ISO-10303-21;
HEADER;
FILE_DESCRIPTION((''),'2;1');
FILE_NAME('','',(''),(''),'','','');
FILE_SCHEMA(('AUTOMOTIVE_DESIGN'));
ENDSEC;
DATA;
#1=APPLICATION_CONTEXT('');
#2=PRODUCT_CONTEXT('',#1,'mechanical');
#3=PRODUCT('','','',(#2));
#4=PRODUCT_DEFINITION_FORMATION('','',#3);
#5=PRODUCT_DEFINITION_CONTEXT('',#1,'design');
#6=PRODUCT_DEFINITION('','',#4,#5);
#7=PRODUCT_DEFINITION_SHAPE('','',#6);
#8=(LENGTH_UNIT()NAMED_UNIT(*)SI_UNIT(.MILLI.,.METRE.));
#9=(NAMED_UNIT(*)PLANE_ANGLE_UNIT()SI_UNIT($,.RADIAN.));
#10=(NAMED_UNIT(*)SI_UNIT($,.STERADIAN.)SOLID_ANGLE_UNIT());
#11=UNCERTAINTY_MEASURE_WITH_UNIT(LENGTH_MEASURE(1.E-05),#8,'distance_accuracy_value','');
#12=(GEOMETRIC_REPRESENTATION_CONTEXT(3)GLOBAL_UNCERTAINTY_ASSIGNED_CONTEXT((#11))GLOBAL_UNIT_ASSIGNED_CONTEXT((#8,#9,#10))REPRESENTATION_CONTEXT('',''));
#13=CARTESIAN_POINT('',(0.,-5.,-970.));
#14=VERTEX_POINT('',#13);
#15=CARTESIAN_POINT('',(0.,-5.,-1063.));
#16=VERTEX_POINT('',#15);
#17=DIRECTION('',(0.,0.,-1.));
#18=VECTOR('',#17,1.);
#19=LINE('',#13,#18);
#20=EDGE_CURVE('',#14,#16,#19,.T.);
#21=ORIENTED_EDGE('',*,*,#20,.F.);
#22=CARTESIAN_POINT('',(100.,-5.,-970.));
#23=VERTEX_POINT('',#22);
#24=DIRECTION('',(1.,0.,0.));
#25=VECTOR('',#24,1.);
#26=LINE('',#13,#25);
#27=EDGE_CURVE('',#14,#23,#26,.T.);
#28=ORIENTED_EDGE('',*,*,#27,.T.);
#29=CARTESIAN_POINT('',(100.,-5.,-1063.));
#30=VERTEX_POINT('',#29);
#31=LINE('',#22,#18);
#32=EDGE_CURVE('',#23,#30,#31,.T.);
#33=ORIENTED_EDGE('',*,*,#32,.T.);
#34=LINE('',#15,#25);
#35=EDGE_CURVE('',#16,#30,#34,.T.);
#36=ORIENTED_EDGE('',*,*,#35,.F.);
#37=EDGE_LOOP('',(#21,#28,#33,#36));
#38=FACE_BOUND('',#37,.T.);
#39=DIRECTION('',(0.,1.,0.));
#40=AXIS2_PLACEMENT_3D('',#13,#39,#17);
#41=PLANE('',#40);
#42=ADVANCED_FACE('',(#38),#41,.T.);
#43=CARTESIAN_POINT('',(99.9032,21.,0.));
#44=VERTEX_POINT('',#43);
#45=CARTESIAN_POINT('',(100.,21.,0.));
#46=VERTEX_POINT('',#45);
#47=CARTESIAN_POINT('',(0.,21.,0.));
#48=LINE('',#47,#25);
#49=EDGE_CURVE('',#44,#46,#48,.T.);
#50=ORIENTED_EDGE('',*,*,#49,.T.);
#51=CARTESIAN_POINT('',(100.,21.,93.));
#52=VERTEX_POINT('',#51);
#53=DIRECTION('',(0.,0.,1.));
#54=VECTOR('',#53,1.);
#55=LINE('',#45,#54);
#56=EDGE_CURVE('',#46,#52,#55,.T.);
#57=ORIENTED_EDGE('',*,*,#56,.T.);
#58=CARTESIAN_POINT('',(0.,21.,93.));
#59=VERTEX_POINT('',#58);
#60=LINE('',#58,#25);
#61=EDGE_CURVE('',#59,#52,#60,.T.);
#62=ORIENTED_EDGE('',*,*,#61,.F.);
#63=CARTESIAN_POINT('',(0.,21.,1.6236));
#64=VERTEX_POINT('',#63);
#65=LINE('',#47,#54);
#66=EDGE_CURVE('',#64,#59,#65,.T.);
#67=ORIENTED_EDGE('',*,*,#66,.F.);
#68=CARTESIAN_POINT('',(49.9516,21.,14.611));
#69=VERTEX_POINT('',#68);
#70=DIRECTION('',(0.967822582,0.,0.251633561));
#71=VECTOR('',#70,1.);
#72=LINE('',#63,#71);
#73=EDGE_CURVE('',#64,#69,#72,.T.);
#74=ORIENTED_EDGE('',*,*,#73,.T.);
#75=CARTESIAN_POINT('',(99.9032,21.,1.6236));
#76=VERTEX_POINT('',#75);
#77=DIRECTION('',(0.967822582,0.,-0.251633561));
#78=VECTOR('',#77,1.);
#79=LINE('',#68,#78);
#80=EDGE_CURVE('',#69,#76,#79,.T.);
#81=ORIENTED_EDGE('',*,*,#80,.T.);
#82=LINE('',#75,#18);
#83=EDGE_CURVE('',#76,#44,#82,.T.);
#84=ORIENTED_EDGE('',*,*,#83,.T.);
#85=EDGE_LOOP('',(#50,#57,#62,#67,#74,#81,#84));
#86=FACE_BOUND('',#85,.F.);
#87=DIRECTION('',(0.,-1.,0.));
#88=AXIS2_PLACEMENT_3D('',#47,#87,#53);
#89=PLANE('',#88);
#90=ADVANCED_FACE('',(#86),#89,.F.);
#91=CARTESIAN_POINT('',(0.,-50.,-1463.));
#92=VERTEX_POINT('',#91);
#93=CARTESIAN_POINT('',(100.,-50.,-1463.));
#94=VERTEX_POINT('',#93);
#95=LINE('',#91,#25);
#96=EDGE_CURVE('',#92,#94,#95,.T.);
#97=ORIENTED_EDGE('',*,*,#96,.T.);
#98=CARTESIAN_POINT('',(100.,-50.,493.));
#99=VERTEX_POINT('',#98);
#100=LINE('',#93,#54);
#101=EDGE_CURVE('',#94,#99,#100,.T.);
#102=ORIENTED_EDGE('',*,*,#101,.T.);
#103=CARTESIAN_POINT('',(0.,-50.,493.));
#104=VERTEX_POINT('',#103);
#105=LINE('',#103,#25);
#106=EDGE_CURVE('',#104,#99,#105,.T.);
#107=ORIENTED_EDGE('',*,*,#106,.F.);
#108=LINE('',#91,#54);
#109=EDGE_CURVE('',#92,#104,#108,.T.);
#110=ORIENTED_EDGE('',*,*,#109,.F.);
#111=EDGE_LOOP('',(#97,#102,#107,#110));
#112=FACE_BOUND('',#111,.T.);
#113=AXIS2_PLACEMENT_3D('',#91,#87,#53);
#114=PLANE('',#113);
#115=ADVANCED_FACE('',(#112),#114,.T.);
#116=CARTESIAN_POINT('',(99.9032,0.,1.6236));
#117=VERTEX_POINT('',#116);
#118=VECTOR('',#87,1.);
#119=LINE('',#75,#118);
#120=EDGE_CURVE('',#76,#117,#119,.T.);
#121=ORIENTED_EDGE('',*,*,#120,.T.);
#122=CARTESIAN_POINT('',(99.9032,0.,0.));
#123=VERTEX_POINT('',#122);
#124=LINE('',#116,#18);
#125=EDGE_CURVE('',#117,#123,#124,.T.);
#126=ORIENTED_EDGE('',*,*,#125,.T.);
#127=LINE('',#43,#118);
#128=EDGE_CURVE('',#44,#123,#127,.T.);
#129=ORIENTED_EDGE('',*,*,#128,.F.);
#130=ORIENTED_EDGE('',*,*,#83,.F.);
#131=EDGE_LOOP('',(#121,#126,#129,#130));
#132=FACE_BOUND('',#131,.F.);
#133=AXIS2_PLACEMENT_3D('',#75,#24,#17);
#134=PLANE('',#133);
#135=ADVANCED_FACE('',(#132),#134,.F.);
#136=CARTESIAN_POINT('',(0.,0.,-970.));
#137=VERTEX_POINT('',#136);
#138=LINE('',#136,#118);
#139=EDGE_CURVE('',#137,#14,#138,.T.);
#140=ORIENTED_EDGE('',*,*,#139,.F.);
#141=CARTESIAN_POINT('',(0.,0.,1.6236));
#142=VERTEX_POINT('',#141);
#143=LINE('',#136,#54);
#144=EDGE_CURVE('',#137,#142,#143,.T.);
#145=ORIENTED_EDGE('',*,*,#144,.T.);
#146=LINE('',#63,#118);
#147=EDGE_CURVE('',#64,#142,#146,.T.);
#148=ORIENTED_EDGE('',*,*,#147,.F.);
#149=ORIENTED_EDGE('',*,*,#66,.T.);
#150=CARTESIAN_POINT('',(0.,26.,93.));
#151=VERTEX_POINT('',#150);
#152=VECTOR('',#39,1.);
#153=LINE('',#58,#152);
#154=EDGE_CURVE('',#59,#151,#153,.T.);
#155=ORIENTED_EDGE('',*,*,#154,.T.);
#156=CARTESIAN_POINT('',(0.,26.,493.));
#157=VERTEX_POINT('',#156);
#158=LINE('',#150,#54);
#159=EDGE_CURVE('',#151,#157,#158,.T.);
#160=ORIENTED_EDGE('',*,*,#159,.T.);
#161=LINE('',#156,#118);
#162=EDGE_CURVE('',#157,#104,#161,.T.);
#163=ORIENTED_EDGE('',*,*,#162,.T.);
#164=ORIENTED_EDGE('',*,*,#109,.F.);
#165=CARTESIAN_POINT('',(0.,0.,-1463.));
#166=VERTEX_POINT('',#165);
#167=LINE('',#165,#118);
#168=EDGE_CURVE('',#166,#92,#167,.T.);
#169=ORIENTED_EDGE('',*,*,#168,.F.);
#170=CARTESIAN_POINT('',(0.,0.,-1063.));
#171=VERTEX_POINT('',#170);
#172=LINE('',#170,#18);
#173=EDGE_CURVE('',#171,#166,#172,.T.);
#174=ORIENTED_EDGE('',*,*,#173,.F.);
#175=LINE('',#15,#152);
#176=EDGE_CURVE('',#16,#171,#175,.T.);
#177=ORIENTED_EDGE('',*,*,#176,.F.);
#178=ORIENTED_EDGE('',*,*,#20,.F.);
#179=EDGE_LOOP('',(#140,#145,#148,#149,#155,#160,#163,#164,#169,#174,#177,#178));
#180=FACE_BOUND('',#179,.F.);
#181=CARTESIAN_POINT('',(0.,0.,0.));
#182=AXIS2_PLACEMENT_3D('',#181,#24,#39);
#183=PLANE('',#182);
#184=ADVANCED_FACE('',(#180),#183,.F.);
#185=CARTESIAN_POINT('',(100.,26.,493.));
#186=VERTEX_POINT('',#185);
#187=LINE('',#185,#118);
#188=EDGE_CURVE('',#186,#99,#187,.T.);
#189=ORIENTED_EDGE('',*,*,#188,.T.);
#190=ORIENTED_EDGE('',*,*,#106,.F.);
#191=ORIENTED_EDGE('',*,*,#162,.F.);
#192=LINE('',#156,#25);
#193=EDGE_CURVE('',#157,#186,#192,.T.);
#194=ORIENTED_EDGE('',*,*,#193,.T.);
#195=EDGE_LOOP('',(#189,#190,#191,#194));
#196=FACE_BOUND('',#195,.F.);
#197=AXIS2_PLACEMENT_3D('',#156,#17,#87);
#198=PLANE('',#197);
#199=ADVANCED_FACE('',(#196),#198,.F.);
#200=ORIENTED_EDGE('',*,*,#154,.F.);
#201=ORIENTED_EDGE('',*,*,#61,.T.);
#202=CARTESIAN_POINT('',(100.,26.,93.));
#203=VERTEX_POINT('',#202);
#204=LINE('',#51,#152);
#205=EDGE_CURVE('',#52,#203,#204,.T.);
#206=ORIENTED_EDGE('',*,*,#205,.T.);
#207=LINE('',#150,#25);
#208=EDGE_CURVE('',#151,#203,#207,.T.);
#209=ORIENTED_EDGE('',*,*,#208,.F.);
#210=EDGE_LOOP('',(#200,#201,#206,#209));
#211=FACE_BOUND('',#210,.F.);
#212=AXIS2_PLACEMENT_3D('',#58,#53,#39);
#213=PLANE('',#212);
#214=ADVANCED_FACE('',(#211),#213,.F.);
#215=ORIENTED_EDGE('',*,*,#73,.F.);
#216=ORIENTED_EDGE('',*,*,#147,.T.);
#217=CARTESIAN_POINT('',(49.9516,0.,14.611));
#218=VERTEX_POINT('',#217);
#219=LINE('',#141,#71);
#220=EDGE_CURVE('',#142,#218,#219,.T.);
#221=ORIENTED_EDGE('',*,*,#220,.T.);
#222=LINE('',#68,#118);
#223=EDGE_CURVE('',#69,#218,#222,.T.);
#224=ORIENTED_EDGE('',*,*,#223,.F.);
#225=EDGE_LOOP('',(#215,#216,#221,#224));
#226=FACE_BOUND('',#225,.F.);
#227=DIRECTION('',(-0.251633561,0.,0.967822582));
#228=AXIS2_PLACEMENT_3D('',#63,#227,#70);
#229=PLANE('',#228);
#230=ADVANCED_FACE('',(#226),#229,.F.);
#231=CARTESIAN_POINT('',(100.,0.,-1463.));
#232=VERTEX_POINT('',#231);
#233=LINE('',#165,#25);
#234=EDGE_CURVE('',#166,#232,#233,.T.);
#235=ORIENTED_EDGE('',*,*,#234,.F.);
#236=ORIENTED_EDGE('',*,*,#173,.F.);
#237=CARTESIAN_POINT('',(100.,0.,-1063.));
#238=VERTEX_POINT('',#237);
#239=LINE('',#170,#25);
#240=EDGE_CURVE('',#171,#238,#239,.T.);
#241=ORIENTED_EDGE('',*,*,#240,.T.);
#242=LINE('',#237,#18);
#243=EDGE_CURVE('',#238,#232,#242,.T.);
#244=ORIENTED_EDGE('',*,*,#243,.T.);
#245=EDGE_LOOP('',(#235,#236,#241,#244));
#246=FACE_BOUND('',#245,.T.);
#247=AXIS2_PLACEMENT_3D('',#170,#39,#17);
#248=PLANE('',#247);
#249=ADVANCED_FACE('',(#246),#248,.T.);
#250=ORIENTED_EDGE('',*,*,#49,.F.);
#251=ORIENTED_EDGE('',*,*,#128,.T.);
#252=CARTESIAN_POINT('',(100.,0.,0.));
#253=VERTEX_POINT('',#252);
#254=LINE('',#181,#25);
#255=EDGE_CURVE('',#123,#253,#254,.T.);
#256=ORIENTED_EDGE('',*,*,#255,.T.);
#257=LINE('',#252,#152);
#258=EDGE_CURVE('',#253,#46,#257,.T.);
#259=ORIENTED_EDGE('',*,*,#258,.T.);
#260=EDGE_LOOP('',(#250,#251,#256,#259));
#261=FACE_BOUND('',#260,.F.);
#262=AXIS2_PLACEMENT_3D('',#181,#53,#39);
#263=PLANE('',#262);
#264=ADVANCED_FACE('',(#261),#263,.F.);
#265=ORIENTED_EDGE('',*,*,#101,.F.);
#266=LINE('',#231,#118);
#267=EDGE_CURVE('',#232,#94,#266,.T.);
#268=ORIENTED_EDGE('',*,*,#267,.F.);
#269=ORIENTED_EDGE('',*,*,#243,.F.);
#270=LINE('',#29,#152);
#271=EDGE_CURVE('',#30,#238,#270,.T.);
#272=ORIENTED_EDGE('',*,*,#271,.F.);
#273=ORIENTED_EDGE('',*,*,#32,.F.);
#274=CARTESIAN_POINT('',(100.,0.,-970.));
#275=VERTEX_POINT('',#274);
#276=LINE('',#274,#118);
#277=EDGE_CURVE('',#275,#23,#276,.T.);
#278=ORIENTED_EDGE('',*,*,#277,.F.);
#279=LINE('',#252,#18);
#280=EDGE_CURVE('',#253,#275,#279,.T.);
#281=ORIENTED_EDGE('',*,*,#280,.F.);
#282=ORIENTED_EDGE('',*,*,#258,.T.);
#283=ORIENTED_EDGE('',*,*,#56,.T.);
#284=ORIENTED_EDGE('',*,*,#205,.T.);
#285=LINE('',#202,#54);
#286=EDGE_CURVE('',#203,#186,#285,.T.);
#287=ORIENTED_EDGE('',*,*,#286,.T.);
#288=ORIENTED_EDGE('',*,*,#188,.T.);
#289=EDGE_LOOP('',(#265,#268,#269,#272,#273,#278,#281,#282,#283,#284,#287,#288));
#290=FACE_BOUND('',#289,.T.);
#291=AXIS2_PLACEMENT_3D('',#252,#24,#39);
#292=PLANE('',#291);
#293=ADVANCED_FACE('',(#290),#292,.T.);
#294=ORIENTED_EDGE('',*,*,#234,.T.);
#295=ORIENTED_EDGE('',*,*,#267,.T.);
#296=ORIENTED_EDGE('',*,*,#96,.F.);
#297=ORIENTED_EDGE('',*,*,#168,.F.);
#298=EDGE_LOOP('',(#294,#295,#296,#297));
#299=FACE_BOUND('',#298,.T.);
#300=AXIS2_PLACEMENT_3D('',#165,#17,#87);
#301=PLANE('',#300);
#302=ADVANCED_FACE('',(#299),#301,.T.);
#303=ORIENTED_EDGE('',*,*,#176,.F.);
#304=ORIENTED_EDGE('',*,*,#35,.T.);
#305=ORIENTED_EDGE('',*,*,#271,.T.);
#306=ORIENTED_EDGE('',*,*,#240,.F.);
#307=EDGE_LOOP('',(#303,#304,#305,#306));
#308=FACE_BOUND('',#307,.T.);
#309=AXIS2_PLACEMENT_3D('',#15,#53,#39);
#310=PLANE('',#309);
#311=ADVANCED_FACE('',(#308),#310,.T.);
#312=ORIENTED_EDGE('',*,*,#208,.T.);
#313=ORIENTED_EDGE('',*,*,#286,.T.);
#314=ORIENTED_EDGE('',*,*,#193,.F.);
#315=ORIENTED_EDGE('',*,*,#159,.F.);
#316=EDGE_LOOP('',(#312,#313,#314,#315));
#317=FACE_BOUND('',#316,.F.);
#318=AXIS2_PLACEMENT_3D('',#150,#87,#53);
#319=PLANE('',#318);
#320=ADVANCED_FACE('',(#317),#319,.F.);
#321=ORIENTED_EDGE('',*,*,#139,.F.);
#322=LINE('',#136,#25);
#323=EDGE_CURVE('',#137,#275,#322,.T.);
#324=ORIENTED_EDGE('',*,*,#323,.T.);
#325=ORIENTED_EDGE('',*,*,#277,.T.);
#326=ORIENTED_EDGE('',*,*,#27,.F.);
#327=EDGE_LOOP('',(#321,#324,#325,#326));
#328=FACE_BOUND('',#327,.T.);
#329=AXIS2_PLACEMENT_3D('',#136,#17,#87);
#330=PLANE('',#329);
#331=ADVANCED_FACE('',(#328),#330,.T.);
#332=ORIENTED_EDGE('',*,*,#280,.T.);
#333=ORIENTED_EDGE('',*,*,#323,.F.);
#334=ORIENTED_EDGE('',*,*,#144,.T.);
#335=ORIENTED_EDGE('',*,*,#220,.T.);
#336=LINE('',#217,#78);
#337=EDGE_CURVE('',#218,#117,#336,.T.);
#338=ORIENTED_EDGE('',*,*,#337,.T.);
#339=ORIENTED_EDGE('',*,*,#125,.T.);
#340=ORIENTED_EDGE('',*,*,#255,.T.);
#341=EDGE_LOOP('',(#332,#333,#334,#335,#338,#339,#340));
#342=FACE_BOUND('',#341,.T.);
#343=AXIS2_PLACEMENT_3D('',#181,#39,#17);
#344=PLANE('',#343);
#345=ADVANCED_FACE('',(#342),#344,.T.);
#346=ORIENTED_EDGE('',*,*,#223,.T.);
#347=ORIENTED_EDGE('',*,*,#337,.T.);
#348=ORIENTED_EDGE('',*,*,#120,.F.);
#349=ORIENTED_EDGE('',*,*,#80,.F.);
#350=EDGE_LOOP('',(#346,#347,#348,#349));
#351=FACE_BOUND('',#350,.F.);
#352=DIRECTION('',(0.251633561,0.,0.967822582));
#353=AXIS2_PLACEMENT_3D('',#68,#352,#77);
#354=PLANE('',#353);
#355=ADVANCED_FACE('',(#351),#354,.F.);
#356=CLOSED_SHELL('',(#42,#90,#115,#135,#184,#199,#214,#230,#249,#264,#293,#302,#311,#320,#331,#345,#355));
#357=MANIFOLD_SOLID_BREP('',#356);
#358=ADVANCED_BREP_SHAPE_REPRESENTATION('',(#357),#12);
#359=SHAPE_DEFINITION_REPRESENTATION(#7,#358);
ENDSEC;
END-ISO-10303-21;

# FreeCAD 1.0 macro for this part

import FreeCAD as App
import Part
import Sketcher

V = App.Vector


def add_polygon(sketch, points):
    """Adds a closed chain of lines whose ends are joined by coincident constraints."""
    first, n = sketch.GeometryCount, len(points)
    for a, b in zip(points, points[1:] + points[:1]):
        sketch.addGeometry(Part.LineSegment(App.Vector(*a, 0), App.Vector(*b, 0)), False)
    for i in range(n):
        sketch.addConstraint(Sketcher.Constraint("Coincident", first + i, 2, first + (i + 1) % n, 1))

doc = App.newDocument("Part")
body = doc.addObject("PartDesign::Body", "Body")

# Sketch on YZ plane
sketch1 = body.newObject("Sketcher::SketchObject", "Sketch")
sketch1.AttachmentSupport = (doc.getObject("YZ_Plane"), [""])
sketch1.MapMode = "FlatFace"
add_polygon(sketch1, [(0, -970), (0, 0), (21, 0), (21, 93), (26, 93), (26, 493), (-50, 493), (-50, -1463), (0, -1463), (0, -1063), (-5, -1063), (-5, -970)])  # lines 0-11
sketch1.addConstraint(Sketcher.Constraint("Vertical", 0))
sketch1.addConstraint(Sketcher.Constraint("Horizontal", 1))
sketch1.addConstraint(Sketcher.Constraint("Vertical", 2))
sketch1.addConstraint(Sketcher.Constraint("Horizontal", 3))
sketch1.addConstraint(Sketcher.Constraint("Vertical", 4))
sketch1.addConstraint(Sketcher.Constraint("Horizontal", 5))
sketch1.addConstraint(Sketcher.Constraint("Vertical", 6))
sketch1.addConstraint(Sketcher.Constraint("Horizontal", 7))
sketch1.addConstraint(Sketcher.Constraint("Vertical", 8))
sketch1.addConstraint(Sketcher.Constraint("Horizontal", 9))
sketch1.addConstraint(Sketcher.Constraint("Vertical", 10))
sketch1.addConstraint(Sketcher.Constraint("Horizontal", 11))
sketch1.addConstraint(Sketcher.Constraint("Coincident", 0, 2, -1, 1))
sketch1.addConstraint(Sketcher.Constraint("PointOnObject", 7, 2, -2))
sketch1.addConstraint(Sketcher.Constraint("Equal", 3, 9))
sketch1.addConstraint(Sketcher.Constraint("Equal", 4, 8))
sketch1.addConstraint(Sketcher.Constraint("Equal", 2, 10))
sketch1.addConstraint(Sketcher.Constraint("DistanceX", 1, 1, 1, 2, 21.0))
sketch1.addConstraint(Sketcher.Constraint("DistanceX", 3, 1, 3, 2, 5.0))
sketch1.addConstraint(Sketcher.Constraint("DistanceX", 7, 1, 7, 2, 50.0))
sketch1.addConstraint(Sketcher.Constraint("DistanceY", 0, 1, 0, 2, 970.0))
sketch1.addConstraint(Sketcher.Constraint("DistanceY", 2, 1, 2, 2, 93.0))
sketch1.addConstraint(Sketcher.Constraint("DistanceY", 4, 1, 4, 2, 400.0))
pad1 = body.newObject("PartDesign::Pad", "Pad")
pad1.Profile = sketch1
pad1.Length = 100

# Sketch on XZ plane
sketch2 = body.newObject("Sketcher::SketchObject", "Sketch001")
sketch2.AttachmentSupport = (doc.getObject("XZ_Plane"), [""])
sketch2.MapMode = "FlatFace"
sketch2.AttachmentOffset = App.Placement(V(0, 0, -21), App.Rotation())
add_polygon(sketch2, [(0, 0), (0, 1.6236), (49.9516, 14.611), (99.9032, 1.6236), (99.9032, 0)])  # lines 0-4
sketch2.addConstraint(Sketcher.Constraint("Vertical", 0))
sketch2.addConstraint(Sketcher.Constraint("Vertical", 3))
sketch2.addConstraint(Sketcher.Constraint("Horizontal", 4))
sketch2.addConstraint(Sketcher.Constraint("Coincident", 4, 2, -1, 1))
sketch2.addConstraint(Sketcher.Constraint("Horizontal", 0, 2, 2, 2))
sketch2.addConstraint(Sketcher.Constraint("Equal", 1, 2))
sketch2.addConstraint(Sketcher.Constraint("DistanceX", 4, 2, 4, 1, 99.9032))
sketch2.addConstraint(Sketcher.Constraint("DistanceY", 0, 1, 0, 2, 1.6236))
sketch2.addConstraint(Sketcher.Constraint("DistanceY", -1, 1, 1, 2, 14.611))
pocket1 = body.newObject("PartDesign::Pocket", "Pocket")
pocket1.Profile = sketch2
pocket1.Length = 21
pocket1.Reversed = True

doc.recompute()
